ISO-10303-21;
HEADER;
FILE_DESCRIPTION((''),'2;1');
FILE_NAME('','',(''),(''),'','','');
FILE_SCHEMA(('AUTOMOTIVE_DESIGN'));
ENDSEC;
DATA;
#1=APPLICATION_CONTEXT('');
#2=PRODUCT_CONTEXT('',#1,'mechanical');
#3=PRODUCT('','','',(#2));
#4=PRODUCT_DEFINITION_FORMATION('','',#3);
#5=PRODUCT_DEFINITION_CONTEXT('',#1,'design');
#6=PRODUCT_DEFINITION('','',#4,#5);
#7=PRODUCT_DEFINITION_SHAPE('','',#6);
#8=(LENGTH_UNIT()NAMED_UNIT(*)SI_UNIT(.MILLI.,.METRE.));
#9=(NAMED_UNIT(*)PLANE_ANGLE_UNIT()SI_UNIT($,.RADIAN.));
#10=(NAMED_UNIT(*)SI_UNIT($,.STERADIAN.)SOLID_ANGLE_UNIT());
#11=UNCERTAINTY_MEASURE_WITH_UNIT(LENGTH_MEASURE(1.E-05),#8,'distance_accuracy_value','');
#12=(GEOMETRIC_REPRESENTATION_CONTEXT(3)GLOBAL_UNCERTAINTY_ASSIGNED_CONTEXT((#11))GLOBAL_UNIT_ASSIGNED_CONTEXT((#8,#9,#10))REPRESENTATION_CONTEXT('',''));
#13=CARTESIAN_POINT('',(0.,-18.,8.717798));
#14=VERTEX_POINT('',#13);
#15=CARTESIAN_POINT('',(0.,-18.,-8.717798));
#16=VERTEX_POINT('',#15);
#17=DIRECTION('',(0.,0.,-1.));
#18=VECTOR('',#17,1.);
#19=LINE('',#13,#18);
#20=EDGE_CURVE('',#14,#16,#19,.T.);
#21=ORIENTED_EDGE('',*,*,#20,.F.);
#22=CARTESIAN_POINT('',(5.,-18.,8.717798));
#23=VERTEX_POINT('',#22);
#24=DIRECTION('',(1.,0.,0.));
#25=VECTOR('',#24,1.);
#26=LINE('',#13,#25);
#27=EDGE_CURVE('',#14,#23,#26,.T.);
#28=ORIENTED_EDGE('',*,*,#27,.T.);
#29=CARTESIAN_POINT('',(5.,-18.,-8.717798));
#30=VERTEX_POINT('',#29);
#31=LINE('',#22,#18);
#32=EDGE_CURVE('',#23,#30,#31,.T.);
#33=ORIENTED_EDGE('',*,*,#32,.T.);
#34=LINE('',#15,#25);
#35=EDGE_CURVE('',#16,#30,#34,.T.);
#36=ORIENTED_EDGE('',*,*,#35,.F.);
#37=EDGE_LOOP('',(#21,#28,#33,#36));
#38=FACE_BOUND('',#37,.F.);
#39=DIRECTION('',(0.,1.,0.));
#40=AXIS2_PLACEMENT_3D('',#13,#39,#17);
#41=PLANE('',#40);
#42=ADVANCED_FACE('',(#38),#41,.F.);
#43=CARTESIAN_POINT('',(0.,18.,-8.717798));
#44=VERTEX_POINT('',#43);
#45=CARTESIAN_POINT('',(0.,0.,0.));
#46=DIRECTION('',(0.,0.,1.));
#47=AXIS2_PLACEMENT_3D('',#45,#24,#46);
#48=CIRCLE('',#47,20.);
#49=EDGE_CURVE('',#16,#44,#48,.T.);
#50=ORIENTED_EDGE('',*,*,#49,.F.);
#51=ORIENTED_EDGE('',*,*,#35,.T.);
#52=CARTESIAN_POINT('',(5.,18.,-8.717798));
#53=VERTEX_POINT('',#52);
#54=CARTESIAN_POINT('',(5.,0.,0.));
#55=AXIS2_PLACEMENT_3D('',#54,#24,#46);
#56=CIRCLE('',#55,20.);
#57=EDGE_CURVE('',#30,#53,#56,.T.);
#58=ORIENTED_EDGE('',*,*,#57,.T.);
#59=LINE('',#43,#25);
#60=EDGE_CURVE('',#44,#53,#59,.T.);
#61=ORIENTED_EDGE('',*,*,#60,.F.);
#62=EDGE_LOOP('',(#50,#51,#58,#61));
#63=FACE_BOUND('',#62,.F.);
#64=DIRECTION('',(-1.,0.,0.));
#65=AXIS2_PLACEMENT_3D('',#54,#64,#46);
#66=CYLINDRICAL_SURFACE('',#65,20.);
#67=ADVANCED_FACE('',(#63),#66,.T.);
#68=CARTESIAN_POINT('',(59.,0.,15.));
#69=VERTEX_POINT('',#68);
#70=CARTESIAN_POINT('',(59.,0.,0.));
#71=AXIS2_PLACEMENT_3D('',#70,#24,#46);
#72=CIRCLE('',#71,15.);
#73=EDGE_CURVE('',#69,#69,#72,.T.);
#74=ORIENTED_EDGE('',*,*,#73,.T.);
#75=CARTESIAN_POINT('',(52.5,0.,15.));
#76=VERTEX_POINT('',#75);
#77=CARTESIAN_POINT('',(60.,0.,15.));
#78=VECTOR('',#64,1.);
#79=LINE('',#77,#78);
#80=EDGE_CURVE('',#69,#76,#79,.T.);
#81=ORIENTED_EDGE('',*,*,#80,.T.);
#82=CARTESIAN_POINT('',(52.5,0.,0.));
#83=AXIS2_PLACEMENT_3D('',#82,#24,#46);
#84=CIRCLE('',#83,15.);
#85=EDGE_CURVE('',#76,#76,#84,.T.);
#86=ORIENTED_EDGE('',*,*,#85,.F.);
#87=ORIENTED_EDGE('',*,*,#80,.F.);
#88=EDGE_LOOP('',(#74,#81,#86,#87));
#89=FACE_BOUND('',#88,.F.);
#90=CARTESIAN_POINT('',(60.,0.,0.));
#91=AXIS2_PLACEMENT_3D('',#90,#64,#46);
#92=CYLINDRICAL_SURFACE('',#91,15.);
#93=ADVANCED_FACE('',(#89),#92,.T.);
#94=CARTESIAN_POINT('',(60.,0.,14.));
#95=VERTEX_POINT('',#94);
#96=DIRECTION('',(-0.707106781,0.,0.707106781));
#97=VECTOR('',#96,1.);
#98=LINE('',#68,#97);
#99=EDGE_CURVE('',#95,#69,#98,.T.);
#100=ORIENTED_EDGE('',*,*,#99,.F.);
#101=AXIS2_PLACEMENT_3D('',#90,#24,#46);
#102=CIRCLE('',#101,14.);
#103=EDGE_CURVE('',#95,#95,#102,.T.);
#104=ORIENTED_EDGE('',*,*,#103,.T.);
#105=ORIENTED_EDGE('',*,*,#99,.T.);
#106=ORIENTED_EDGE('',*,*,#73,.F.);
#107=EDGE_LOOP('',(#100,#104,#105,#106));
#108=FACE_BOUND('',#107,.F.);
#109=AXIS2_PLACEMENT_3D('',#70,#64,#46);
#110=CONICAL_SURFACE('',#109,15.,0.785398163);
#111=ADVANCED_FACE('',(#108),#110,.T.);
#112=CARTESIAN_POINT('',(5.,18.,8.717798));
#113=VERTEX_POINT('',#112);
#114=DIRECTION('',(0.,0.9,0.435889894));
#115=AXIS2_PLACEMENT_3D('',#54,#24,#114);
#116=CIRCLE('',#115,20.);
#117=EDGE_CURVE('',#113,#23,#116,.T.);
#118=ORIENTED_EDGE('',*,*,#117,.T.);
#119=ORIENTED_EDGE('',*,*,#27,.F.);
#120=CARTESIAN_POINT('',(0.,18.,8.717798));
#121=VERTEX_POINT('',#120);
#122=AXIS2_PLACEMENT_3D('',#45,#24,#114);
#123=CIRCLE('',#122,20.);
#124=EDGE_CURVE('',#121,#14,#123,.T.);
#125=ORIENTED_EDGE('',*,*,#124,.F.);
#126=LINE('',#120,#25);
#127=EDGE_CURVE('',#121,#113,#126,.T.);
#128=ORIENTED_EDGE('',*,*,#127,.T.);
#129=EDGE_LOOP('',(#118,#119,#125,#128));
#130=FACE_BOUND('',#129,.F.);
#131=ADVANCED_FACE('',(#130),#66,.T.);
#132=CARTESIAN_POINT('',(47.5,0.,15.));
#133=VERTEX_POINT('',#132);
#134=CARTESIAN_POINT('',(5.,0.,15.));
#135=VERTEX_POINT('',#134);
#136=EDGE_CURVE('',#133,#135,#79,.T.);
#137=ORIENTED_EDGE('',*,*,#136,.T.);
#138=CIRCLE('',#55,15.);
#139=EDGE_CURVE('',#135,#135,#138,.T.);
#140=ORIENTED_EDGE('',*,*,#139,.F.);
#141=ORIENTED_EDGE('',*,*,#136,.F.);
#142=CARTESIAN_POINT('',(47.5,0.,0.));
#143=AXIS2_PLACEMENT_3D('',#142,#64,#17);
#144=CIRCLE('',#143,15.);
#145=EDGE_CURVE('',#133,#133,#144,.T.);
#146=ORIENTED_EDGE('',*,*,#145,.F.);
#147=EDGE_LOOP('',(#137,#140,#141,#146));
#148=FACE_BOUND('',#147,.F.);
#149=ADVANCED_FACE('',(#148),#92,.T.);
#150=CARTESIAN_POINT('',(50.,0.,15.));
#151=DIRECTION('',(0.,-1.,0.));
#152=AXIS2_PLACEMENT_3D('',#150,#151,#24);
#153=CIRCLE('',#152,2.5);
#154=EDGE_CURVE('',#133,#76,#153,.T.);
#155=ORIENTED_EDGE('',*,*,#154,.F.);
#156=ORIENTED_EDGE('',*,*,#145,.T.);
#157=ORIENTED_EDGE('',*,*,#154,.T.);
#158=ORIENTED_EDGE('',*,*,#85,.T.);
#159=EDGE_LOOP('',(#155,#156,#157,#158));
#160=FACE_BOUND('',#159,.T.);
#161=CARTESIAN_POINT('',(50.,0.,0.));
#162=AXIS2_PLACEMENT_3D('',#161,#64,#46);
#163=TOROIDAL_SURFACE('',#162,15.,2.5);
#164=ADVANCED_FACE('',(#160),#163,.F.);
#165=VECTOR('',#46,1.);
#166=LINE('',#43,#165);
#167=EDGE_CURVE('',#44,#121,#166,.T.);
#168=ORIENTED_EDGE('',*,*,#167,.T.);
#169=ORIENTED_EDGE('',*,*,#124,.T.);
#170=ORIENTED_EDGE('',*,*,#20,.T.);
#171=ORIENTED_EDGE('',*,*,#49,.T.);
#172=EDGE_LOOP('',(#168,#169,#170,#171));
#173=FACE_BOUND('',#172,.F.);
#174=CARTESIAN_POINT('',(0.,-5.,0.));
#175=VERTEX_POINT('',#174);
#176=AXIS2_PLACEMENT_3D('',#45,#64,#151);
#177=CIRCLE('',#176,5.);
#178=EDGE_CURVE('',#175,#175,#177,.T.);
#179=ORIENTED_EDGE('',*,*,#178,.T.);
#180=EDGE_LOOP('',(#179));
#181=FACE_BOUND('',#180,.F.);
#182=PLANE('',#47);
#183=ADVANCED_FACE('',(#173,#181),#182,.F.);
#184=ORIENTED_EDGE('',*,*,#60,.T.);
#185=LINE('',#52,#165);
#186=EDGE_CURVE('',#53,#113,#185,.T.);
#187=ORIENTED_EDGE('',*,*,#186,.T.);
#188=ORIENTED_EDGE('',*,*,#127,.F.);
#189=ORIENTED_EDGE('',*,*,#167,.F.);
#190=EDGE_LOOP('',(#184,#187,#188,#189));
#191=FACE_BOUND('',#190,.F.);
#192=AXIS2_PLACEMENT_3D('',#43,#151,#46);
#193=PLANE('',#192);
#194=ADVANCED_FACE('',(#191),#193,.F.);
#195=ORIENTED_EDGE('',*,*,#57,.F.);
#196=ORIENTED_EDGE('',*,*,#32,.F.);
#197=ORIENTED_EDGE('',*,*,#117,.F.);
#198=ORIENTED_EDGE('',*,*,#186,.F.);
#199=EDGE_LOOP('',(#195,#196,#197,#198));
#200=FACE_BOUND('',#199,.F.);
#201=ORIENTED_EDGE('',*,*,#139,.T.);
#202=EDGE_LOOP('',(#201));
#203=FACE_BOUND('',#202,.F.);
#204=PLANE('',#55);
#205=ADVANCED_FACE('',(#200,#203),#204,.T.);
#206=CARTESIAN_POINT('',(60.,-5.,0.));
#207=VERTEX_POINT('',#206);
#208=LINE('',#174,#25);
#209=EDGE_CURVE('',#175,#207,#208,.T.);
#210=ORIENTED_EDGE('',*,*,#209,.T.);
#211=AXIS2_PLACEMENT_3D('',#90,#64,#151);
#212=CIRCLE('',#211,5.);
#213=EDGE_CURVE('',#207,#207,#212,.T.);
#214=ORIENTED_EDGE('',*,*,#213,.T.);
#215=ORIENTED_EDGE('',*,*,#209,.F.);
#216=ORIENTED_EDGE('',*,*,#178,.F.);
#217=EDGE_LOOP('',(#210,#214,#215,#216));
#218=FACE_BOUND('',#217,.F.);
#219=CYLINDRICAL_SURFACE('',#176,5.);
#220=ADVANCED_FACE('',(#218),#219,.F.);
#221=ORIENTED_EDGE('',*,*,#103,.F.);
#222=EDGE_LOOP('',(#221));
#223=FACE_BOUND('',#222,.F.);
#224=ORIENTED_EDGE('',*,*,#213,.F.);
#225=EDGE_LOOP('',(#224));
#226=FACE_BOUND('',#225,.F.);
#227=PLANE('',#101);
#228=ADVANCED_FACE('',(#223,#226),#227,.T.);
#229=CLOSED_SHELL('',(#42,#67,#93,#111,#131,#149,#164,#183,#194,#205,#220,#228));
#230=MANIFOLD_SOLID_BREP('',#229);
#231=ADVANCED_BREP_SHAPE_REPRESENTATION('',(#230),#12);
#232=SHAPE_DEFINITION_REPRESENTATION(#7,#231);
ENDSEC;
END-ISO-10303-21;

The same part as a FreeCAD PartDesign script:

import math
import FreeCAD as App
import Part
import Sketcher

V = App.Vector
Q = App.Units.Quantity


def edges_at(feature, points):
    """Names of the edges that pass closest to the given points."""
    edges = feature.Shape.Edges
    near = lambda p: min(range(len(edges)), key=lambda i: edges[i].distToShape(Part.Vertex(*p))[0])
    return sorted({f"Edge{near(p) + 1}" for p in points})

doc = App.newDocument("Part")
body = doc.addObject("PartDesign::Body", "Body")

# Sketch on XZ plane
sketch1 = body.newObject("Sketcher::SketchObject", "Sketch")
sketch1.AttachmentSupport = (doc.getObject("XZ_Plane"), [""])
sketch1.MapMode = "FlatFace"
sketch1.addGeometry(Part.LineSegment(V(0, 20, 0), V(0, 0, 0)), False)
sketch1.addGeometry(Part.LineSegment(V(0, 0, 0), V(60, 0, 0)), False)
sketch1.addGeometry(Part.LineSegment(V(60, 0, 0), V(60, 15, 0)), False)
sketch1.addGeometry(Part.LineSegment(V(60, 15, 0), V(5, 15, 0)), False)
sketch1.addGeometry(Part.LineSegment(V(5, 15, 0), V(5, 20, 0)), False)
sketch1.addGeometry(Part.LineSegment(V(5, 20, 0), V(0, 20, 0)), False)
sketch1.addConstraint(Sketcher.Constraint("Coincident", 0, 2, 1, 1))
sketch1.addConstraint(Sketcher.Constraint("Coincident", 1, 2, 2, 1))
sketch1.addConstraint(Sketcher.Constraint("Coincident", 2, 2, 3, 1))
sketch1.addConstraint(Sketcher.Constraint("Coincident", 3, 2, 4, 1))
sketch1.addConstraint(Sketcher.Constraint("Coincident", 4, 2, 5, 1))
sketch1.addConstraint(Sketcher.Constraint("Coincident", 5, 2, 0, 1))
sketch1.addConstraint(Sketcher.Constraint("Vertical", 0))
sketch1.addConstraint(Sketcher.Constraint("Horizontal", 1))
sketch1.addConstraint(Sketcher.Constraint("Vertical", 2))
sketch1.addConstraint(Sketcher.Constraint("Horizontal", 3))
sketch1.addConstraint(Sketcher.Constraint("Vertical", 4))
sketch1.addConstraint(Sketcher.Constraint("Horizontal", 5))
sketch1.addConstraint(Sketcher.Constraint("Coincident", 0, 2, -1, 1))
sketch1.addConstraint(Sketcher.Constraint("Equal", 5, 4))
sketch1.addConstraint(Sketcher.Constraint("DistanceX", 1, 1, 1, 2, Q("60 mm")))
sketch1.addConstraint(Sketcher.Constraint("DistanceX", 3, 2, 3, 1, Q("55 mm")))
sketch1.addConstraint(Sketcher.Constraint("DistanceY", 0, 2, 0, 1, Q("20 mm")))
revolution = body.newObject("PartDesign::Revolution", "Revolution")
revolution.Profile = sketch1
revolution.ReferenceAxis = (sketch1, ["H_Axis"])
revolution.Angle = 360
doc.recompute()

chamfer = body.newObject("PartDesign::Chamfer", "Chamfer")
chamfer.Base = (revolution, edges_at(revolution, [(60, 0, -15)]))
chamfer.Size = 1

# Sketch on XZ plane
sketch2 = body.newObject("Sketcher::SketchObject", "Sketch001")
sketch2.AttachmentSupport = (doc.getObject("XZ_Plane"), [""])
sketch2.MapMode = "FlatFace"
sketch2.addGeometry(Part.Circle(V(50, 15, 0), V(0, 0, 1), 2.5), False)
sketch2.addConstraint(Sketcher.Constraint("Diameter", 0, Q("5 mm")))
sketch2.addConstraint(Sketcher.Constraint("DistanceX", -1, 1, 0, 3, Q("50 mm")))
sketch2.addConstraint(Sketcher.Constraint("DistanceY", -1, 1, 0, 3, Q("15 mm")))
groove = body.newObject("PartDesign::Groove", "Groove")
groove.Profile = sketch2
groove.ReferenceAxis = (sketch2, ["H_Axis"])
groove.Angle = 360

# Sketch on YZ plane
sketch3 = body.newObject("Sketcher::SketchObject", "Sketch002")
sketch3.AttachmentSupport = (doc.getObject("YZ_Plane"), [""])
sketch3.MapMode = "FlatFace"
sketch3.addGeometry(Part.LineSegment(V(-18, 9, 0), V(-18, -9, 0)), False)
sketch3.addGeometry(Part.ArcOfCircle(Part.Circle(V(0, 0, 0), V(0, 0, 1), 20), math.radians(180), math.radians(206)), False)
sketch3.addGeometry(Part.ArcOfCircle(Part.Circle(V(0, 0, 0), V(0, 0, 1), 20), math.radians(154), math.radians(180)), False)
sketch3.addGeometry(Part.ArcOfCircle(Part.Circle(V(0, 0, 0), V(0, 0, 1), 20), math.radians(-26), math.radians(26)), False)
sketch3.addGeometry(Part.LineSegment(V(18, -9, 0), V(18, 9, 0)), False)
sketch3.addConstraint(Sketcher.Constraint("Coincident", 0, 2, 1, 2))
sketch3.addConstraint(Sketcher.Constraint("Tangent", 1, 1, 2, 2))
sketch3.addConstraint(Sketcher.Constraint("Coincident", 2, 1, 0, 1))
sketch3.addConstraint(Sketcher.Constraint("Coincident", 3, 1, 4, 1))
sketch3.addConstraint(Sketcher.Constraint("Coincident", 4, 2, 3, 2))
sketch3.addConstraint(Sketcher.Constraint("Vertical", 0))
sketch3.addConstraint(Sketcher.Constraint("Vertical", 4))
sketch3.addConstraint(Sketcher.Constraint("Coincident", 1, 3, -1, 1))
sketch3.addConstraint(Sketcher.Constraint("Coincident", 3, 3, -1, 1))
sketch3.addConstraint(Sketcher.Constraint("Equal", 1, 2))
sketch3.addConstraint(Sketcher.Constraint("Equal", 2, 3))
sketch3.addConstraint(Sketcher.Constraint("PointOnObject", 1, 1, -1))
sketch3.addConstraint(Sketcher.Constraint("Horizontal", 0, 2, 3, 1))
sketch3.addConstraint(Sketcher.Constraint("Radius", 1, Q("20 mm")))
sketch3.addConstraint(Sketcher.Constraint("DistanceX", 0, 2, -1, 1, Q("18 mm")))
pocket1 = body.newObject("PartDesign::Pocket", "Pocket")
pocket1.Profile = sketch3
pocket1.Type = "ThroughAll"
pocket1.Reversed = True

# Sketch on YZ plane
sketch4 = body.newObject("Sketcher::SketchObject", "Sketch003")
sketch4.AttachmentSupport = (doc.getObject("YZ_Plane"), [""])
sketch4.MapMode = "FlatFace"
sketch4.addGeometry(Part.Circle(V(0, 0, 0), V(0, 0, 1), 5), False)
sketch4.addConstraint(Sketcher.Constraint("Coincident", 0, 3, -1, 1))
sketch4.addConstraint(Sketcher.Constraint("Diameter", 0, Q("10 mm")))
pocket2 = body.newObject("PartDesign::Pocket", "Pocket001")
pocket2.Profile = sketch4
pocket2.Type = "ThroughAll"
pocket2.Reversed = True

doc.recompute()
